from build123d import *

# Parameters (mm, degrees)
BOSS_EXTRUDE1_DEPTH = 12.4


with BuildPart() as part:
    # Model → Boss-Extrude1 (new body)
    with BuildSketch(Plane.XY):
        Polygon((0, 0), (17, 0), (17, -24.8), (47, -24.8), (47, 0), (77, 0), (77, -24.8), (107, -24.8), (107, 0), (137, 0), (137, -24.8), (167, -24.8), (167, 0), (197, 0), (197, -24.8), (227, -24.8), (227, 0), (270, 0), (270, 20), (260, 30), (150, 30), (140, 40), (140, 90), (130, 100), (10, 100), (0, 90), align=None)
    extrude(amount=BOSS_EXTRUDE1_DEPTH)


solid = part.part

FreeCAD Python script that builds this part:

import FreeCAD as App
import Part
import Sketcher

V = App.Vector


def add_polygon(sketch, points):
    """Adds a closed chain of lines whose ends are joined by coincident constraints."""
    first, n = sketch.GeometryCount, len(points)
    for a, b in zip(points, points[1:] + points[:1]):
        sketch.addGeometry(Part.LineSegment(App.Vector(*a, 0), App.Vector(*b, 0)), False)
    for i in range(n):
        sketch.addConstraint(Sketcher.Constraint("Coincident", first + i, 2, first + (i + 1) % n, 1))

doc = App.newDocument("Part")
body = doc.addObject("PartDesign::Body", "Body")

sketch1 = body.newObject("Sketcher::SketchObject", "Sketch")
sketch1.AttachmentSupport = (doc.getObject("XY_Plane"), [""])
sketch1.MapMode = "FlatFace"
add_polygon(sketch1, [(0, 0), (17, 0), (17, -25), (47, -25), (47, 0), (77, 0), (77, -25), (107, -25), (107, 0), (137, 0), (137, -25), (167, -25), (167, 0), (197, 0), (197, -25), (227, -25), (227, 0), (270, 0), (270, 20), (260, 30), (150, 30), (140, 40), (140, 90), (130, 100), (10, 100), (0, 90)])
sketch1.addConstraint([
    Sketcher.Constraint("Horizontal", 0),
    Sketcher.Constraint("Vertical", 1),
    Sketcher.Constraint("Horizontal", 2),
    Sketcher.Constraint("Vertical", 3),
    Sketcher.Constraint("Horizontal", 4),
    Sketcher.Constraint("Vertical", 5),
    Sketcher.Constraint("Horizontal", 6),
    Sketcher.Constraint("Vertical", 7),
    Sketcher.Constraint("Horizontal", 8),
    Sketcher.Constraint("Vertical", 9),
    Sketcher.Constraint("Horizontal", 10),
    Sketcher.Constraint("Vertical", 11),
    Sketcher.Constraint("Horizontal", 12),
    Sketcher.Constraint("Vertical", 13),
    Sketcher.Constraint("Horizontal", 14),
    Sketcher.Constraint("Vertical", 15),
    Sketcher.Constraint("Horizontal", 16),
    Sketcher.Constraint("Vertical", 17),
    Sketcher.Constraint("Horizontal", 19),
    Sketcher.Constraint("Vertical", 21),
    Sketcher.Constraint("Horizontal", 23),
    Sketcher.Constraint("Vertical", 25),
    Sketcher.Constraint("Coincident", 25, 2, -1, 1),
    Sketcher.Constraint("PointOnObject", 3, 2, -1),
    Sketcher.Constraint("PointOnObject", 7, 2, -1),
    Sketcher.Constraint("PointOnObject", 11, 2, -1),
    Sketcher.Constraint("PointOnObject", 15, 2, -1),
    Sketcher.Constraint("Parallel", 18, 20),
    Sketcher.Constraint("Parallel", 20, 22),
    Sketcher.Constraint("Perpendicular", 22, 24),
    Sketcher.Constraint("Horizontal", 2, 2, 5, 2),
    Sketcher.Constraint("Horizontal", 6, 2, 9, 2),
    Sketcher.Constraint("Horizontal", 10, 2, 13, 2),
    Sketcher.Constraint("Horizontal", 21, 2, 24, 2),
    Sketcher.Constraint("Equal", 2, 4),
    Sketcher.Constraint("Equal", 4, 6),
    Sketcher.Constraint("Equal", 6, 8),
    Sketcher.Constraint("Equal", 8, 10),
    Sketcher.Constraint("Equal", 10, 12),
    Sketcher.Constraint("Equal", 12, 14),
    Sketcher.Constraint("Equal", 18, 20),
    Sketcher.Constraint("Equal", 20, 22),
    Sketcher.Constraint("Equal", 22, 24),
    Sketcher.Constraint("DistanceX", 0, 1, 0, 2, 17.0),
    Sketcher.Constraint("DistanceX", 2, 1, 2, 2, 30.0),
    Sketcher.Constraint("DistanceX", 16, 1, 16, 2, 43.0),
    Sketcher.Constraint("DistanceX", 19, 2, 19, 1, 110.0),
    Sketcher.Constraint("DistanceX", 23, 2, 23, 1, 120.0),
    Sketcher.Constraint("DistanceY", 17, 1, 17, 2, 20.0),
    Sketcher.Constraint("DistanceY", 21, 1, 21, 2, 50.0),
    Sketcher.Constraint("DistanceY", 1, 2, 1, 1, 24.8),
])
pad1 = body.newObject("PartDesign::Pad", "Pad")
pad1.Profile = sketch1
pad1.Length = 12.4

doc.recompute()
